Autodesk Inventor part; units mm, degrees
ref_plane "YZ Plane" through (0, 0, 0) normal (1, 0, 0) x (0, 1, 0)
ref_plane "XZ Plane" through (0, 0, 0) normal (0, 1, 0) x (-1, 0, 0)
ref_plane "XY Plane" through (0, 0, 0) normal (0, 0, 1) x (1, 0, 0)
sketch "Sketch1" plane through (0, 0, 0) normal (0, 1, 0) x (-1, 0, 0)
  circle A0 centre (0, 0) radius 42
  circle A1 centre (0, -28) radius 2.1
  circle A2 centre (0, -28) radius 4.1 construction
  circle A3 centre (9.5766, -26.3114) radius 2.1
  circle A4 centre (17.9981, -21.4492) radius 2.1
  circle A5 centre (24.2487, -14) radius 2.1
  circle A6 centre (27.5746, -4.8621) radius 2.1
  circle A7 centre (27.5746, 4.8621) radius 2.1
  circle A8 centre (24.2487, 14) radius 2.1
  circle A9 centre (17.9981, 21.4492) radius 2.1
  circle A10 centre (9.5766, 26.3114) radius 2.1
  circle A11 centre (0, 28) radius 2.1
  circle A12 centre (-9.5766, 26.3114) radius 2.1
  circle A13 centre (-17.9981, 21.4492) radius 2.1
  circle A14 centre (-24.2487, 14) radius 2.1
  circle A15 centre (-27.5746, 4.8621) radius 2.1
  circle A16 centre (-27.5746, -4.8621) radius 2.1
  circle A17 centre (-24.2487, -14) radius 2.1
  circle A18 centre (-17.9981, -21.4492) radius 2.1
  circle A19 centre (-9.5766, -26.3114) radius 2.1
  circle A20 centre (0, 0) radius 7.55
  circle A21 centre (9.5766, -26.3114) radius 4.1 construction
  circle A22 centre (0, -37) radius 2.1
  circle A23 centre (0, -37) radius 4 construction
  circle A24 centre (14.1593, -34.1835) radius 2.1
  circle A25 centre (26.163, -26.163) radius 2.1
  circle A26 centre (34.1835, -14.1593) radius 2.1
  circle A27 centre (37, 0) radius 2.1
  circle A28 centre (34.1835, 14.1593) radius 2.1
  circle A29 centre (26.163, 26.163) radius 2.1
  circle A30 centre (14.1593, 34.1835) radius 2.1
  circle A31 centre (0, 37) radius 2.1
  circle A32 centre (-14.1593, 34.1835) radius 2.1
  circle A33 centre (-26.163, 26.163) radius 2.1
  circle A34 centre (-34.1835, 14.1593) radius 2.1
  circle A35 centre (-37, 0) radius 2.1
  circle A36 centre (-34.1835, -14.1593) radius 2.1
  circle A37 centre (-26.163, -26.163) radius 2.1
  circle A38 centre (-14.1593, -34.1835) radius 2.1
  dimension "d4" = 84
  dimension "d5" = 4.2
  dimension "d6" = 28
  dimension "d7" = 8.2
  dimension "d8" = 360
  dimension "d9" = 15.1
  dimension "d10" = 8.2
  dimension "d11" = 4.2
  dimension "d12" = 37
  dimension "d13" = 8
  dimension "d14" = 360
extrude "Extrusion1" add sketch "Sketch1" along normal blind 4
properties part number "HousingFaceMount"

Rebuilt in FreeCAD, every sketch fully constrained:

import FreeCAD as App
import Part
import Sketcher

doc = App.newDocument("Part")
params = doc.addObject("Spreadsheet::Sheet", "Params")
for row, (alias, value) in enumerate([
    ("sketch1_diameter", "84 mm"),
    ("sketch1_diameter2", "4.2 mm"),
    ("sketch1_diameter3", "15.1 mm"),
    ("pad1_length", "4 mm"),
], start=1):
    params.set(f"A{row}", alias)
    params.set(f"B{row}", "=" + value)
    params.setAlias(f"B{row}", alias)

body = doc.addObject("PartDesign::Body", "Body")

# Sketch on XZ plane
sketch1 = doc.addObject("Sketcher::SketchObject", "Sketch")
body.addObject(sketch1)
sketch1.AttachmentSupport = (doc.XZ_Plane, [""])
sketch1.MapMode = "FlatFace"
sketch1.addGeometry(Part.Circle(App.Vector(0, 0, 0), App.Vector(0, 0, 1), 42), False)
sketch1.addGeometry(Part.Circle(App.Vector(26.2, -26.2, 0), App.Vector(0, 0, 1), 2.1), False)
sketch1.addGeometry(Part.Circle(App.Vector(14.2, -34.2, 0), App.Vector(0, 0, 1), 2.1), False)
sketch1.addGeometry(Part.Circle(App.Vector(18, -21.4, 0), App.Vector(0, 0, 1), 2.1), False)
sketch1.addGeometry(Part.Circle(App.Vector(9.6, -26.3, 0), App.Vector(0, 0, 1), 2.1), False)
sketch1.addGeometry(Part.Circle(App.Vector(34.2, -14.2, 0), App.Vector(0, 0, 1), 2.1), False)
sketch1.addGeometry(Part.Circle(App.Vector(24.2, -14, 0), App.Vector(0, 0, 1), 2.1), False)
sketch1.addGeometry(Part.Circle(App.Vector(27.6, -4.9, 0), App.Vector(0, 0, 1), 2.1), False)
sketch1.addGeometry(Part.Circle(App.Vector(0, -37, 0), App.Vector(0, 0, 1), 2.1), False)
sketch1.addGeometry(Part.Circle(App.Vector(-14.2, -34.2, 0), App.Vector(0, 0, 1), 2.1), False)
sketch1.addGeometry(Part.Circle(App.Vector(0, -28, 0), App.Vector(0, 0, 1), 2.1), False)
sketch1.addGeometry(Part.Circle(App.Vector(-9.6, -26.3, 0), App.Vector(0, 0, 1), 2.1), False)
sketch1.addGeometry(Part.Circle(App.Vector(-18, -21.4, 0), App.Vector(0, 0, 1), 2.1), False)
sketch1.addGeometry(Part.Circle(App.Vector(-26.2, -26.2, 0), App.Vector(0, 0, 1), 2.1), False)
sketch1.addGeometry(Part.Circle(App.Vector(-24.2, -14, 0), App.Vector(0, 0, 1), 2.1), False)
sketch1.addGeometry(Part.Circle(App.Vector(-34.2, -14.2, 0), App.Vector(0, 0, 1), 2.1), False)
sketch1.addGeometry(Part.Circle(App.Vector(-27.6, -4.9, 0), App.Vector(0, 0, 1), 2.1), False)
sketch1.addGeometry(Part.Circle(App.Vector(37, 0, 0), App.Vector(0, 0, 1), 2.1), False)
sketch1.addGeometry(Part.Circle(App.Vector(27.6, 4.9, 0), App.Vector(0, 0, 1), 2.1), False)
sketch1.addGeometry(Part.Circle(App.Vector(34.2, 14.2, 0), App.Vector(0, 0, 1), 2.1), False)
sketch1.addGeometry(Part.Circle(App.Vector(24.2, 14, 0), App.Vector(0, 0, 1), 2.1), False)
sketch1.addGeometry(Part.Circle(App.Vector(26.2, 26.2, 0), App.Vector(0, 0, 1), 2.1), False)
sketch1.addGeometry(Part.Circle(App.Vector(18, 21.4, 0), App.Vector(0, 0, 1), 2.1), False)
sketch1.addGeometry(Part.Circle(App.Vector(9.6, 26.3, 0), App.Vector(0, 0, 1), 2.1), False)
sketch1.addGeometry(Part.Circle(App.Vector(14.2, 34.2, 0), App.Vector(0, 0, 1), 2.1), False)
sketch1.addGeometry(Part.Circle(App.Vector(0, 0, 0), App.Vector(0, 0, 1), 7.5), False)
sketch1.addGeometry(Part.Circle(App.Vector(-27.6, 4.9, 0), App.Vector(0, 0, 1), 2.1), False)
sketch1.addGeometry(Part.Circle(App.Vector(-37, 0, 0), App.Vector(0, 0, 1), 2.1), False)
sketch1.addGeometry(Part.Circle(App.Vector(-24.2, 14, 0), App.Vector(0, 0, 1), 2.1), False)
sketch1.addGeometry(Part.Circle(App.Vector(-34.2, 14.2, 0), App.Vector(0, 0, 1), 2.1), False)
sketch1.addGeometry(Part.Circle(App.Vector(0, 28, 0), App.Vector(0, 0, 1), 2.1), False)
sketch1.addGeometry(Part.Circle(App.Vector(-9.6, 26.3, 0), App.Vector(0, 0, 1), 2.1), False)
sketch1.addGeometry(Part.Circle(App.Vector(-18, 21.4, 0), App.Vector(0, 0, 1), 2.1), False)
sketch1.addGeometry(Part.Circle(App.Vector(0, 37, 0), App.Vector(0, 0, 1), 2.1), False)
sketch1.addGeometry(Part.Circle(App.Vector(-14.2, 34.2, 0), App.Vector(0, 0, 1), 2.1), False)
sketch1.addGeometry(Part.Circle(App.Vector(-26.2, 26.2, 0), App.Vector(0, 0, 1), 2.1), False)
sketch1.addConstraint(Sketcher.Constraint("Coincident", 0, 3, -1, 1))
sketch1.addConstraint(Sketcher.Constraint("Coincident", 25, 3, -1, 1))
sketch1.addConstraint(Sketcher.Constraint("Equal", 1, 2))
sketch1.addConstraint(Sketcher.Constraint("Equal", 2, 3))
sketch1.addConstraint(Sketcher.Constraint("Equal", 3, 4))
sketch1.addConstraint(Sketcher.Constraint("Equal", 4, 5))
sketch1.addConstraint(Sketcher.Constraint("Equal", 5, 6))
sketch1.addConstraint(Sketcher.Constraint("Equal", 6, 7))
sketch1.addConstraint(Sketcher.Constraint("Equal", 7, 8))
sketch1.addConstraint(Sketcher.Constraint("Equal", 8, 9))
sketch1.addConstraint(Sketcher.Constraint("Equal", 9, 10))
sketch1.addConstraint(Sketcher.Constraint("Equal", 10, 11))
sketch1.addConstraint(Sketcher.Constraint("Equal", 11, 12))
sketch1.addConstraint(Sketcher.Constraint("Equal", 12, 13))
sketch1.addConstraint(Sketcher.Constraint("Equal", 13, 14))
sketch1.addConstraint(Sketcher.Constraint("Equal", 14, 15))
sketch1.addConstraint(Sketcher.Constraint("Equal", 15, 16))
sketch1.addConstraint(Sketcher.Constraint("Equal", 16, 17))
sketch1.addConstraint(Sketcher.Constraint("Equal", 17, 18))
sketch1.addConstraint(Sketcher.Constraint("Equal", 18, 19))
sketch1.addConstraint(Sketcher.Constraint("Equal", 19, 20))
sketch1.addConstraint(Sketcher.Constraint("Equal", 20, 21))
sketch1.addConstraint(Sketcher.Constraint("Equal", 21, 22))
sketch1.addConstraint(Sketcher.Constraint("Equal", 22, 23))
sketch1.addConstraint(Sketcher.Constraint("Equal", 23, 24))
sketch1.addConstraint(Sketcher.Constraint("Equal", 24, 26))
sketch1.addConstraint(Sketcher.Constraint("Equal", 26, 27))
sketch1.addConstraint(Sketcher.Constraint("Equal", 27, 28))
sketch1.addConstraint(Sketcher.Constraint("Equal", 28, 29))
sketch1.addConstraint(Sketcher.Constraint("Equal", 29, 30))
sketch1.addConstraint(Sketcher.Constraint("Equal", 30, 31))
sketch1.addConstraint(Sketcher.Constraint("Equal", 31, 32))
sketch1.addConstraint(Sketcher.Constraint("Equal", 32, 33))
sketch1.addConstraint(Sketcher.Constraint("Equal", 33, 34))
sketch1.addConstraint(Sketcher.Constraint("Equal", 34, 35))
sketch1.addConstraint(Sketcher.Constraint("Symmetric", 16, 3, 18, 3, -1, 1))
sketch1.addConstraint(Sketcher.Constraint("Symmetric", 15, 3, 19, 3, -1, 1))
sketch1.addConstraint(Sketcher.Constraint("Symmetric", 14, 3, 20, 3, -1, 1))
sketch1.addConstraint(Sketcher.Constraint("Symmetric", 13, 3, 21, 3, -1, 1))
sketch1.addConstraint(Sketcher.Constraint("Symmetric", 12, 3, 22, 3, -1, 1))
sketch1.addConstraint(Sketcher.Constraint("Symmetric", 11, 3, 23, 3, -1, 1))
sketch1.addConstraint(Sketcher.Constraint("Symmetric", 9, 3, 24, 3, -1, 1))
sketch1.addConstraint(Sketcher.Constraint("Symmetric", 7, 3, 26, 3, -1, 1))
sketch1.addConstraint(Sketcher.Constraint("Symmetric", 17, 3, 27, 3, -1, 1))
sketch1.addConstraint(Sketcher.Constraint("Symmetric", 6, 3, 28, 3, -1, 1))
sketch1.addConstraint(Sketcher.Constraint("Symmetric", 5, 3, 29, 3, -1, 1))
sketch1.addConstraint(Sketcher.Constraint("Symmetric", 10, 3, 30, 3, -1, 1))
sketch1.addConstraint(Sketcher.Constraint("Symmetric", 4, 3, 31, 3, -1, 1))
sketch1.addConstraint(Sketcher.Constraint("Symmetric", 3, 3, 32, 3, -1, 1))
sketch1.addConstraint(Sketcher.Constraint("Symmetric", 8, 3, 33, 3, -1, 1))
sketch1.addConstraint(Sketcher.Constraint("Symmetric", 2, 3, 34, 3, -1, 1))
sketch1.addConstraint(Sketcher.Constraint("Symmetric", 1, 3, 35, 3, -1, 1))
sketch1.addConstraint(Sketcher.Constraint("Symmetric", 2, 3, 9, 3, -2))
sketch1.addConstraint(Sketcher.Constraint("Symmetric", 4, 3, 11, 3, -2))
sketch1.addConstraint(Sketcher.Constraint("Symmetric", 3, 3, 12, 3, -2))
sketch1.addConstraint(Sketcher.Constraint("Symmetric", 1, 3, 13, 3, -2))
sketch1.addConstraint(Sketcher.Constraint("Symmetric", 6, 3, 14, 3, -2))
sketch1.addConstraint(Sketcher.Constraint("Symmetric", 5, 3, 15, 3, -2))
sketch1.addConstraint(Sketcher.Constraint("Symmetric", 7, 3, 16, 3, -2))
sketch1.addConstraint(Sketcher.Constraint("PointOnObject", 8, 3, -2))
sketch1.addConstraint(Sketcher.Constraint("PointOnObject", 10, 3, -2))
sketch1.addConstraint(Sketcher.Constraint("PointOnObject", 17, 3, -1))
sketch1.addConstraint(Sketcher.Constraint("Diameter", 0, 84.0))
sketch1.addConstraint(Sketcher.Constraint("Diameter", 1, 4.2))
sketch1.addConstraint(Sketcher.Constraint("Diameter", 25, 15.1))
sketch1.addConstraint(Sketcher.Constraint("DistanceY", 8, 3, -1, 1, 37.0))
sketch1.addConstraint(Sketcher.Constraint("DistanceY", 10, 3, -1, 1, 28.0))
sketch1.addConstraint(Sketcher.Constraint("DistanceX", -1, 1, 17, 3, 37.0))
sketch1.addConstraint(Sketcher.Constraint("DistanceY", 6, 3, -1, 1, 14.0))
sketch1.addConstraint(Sketcher.Constraint("DistanceY", 3, 3, 5, 3, 7.29))
sketch1.addConstraint(Sketcher.Constraint("DistanceX", -1, 1, 1, 3, 26.163))
sketch1.addConstraint(Sketcher.Constraint("DistanceY", 1, 3, -1, 1, 26.163))
sketch1.addConstraint(Sketcher.Constraint("DistanceX", -1, 1, 3, 3, 17.998))
sketch1.addConstraint(Sketcher.Constraint("DistanceY", 7, 3, -1, 1, 4.862))
sketch1.addConstraint(Sketcher.Constraint("DistanceY", 2, 3, 4, 3, 7.872))
sketch1.addConstraint(Sketcher.Constraint("DistanceX", 4, 3, 5, 3, 24.607))
sketch1.addConstraint(Sketcher.Constraint("DistanceY", 4, 3, 5, 3, 12.152))
sketch1.addConstraint(Sketcher.Constraint("DistanceX", 4, 3, 6, 3, 14.672))
sketch1.addConstraint(Sketcher.Constraint("DistanceX", 6, 3, 7, 3, 3.326))
sketch1.addConstraint(Sketcher.Constraint("DistanceY", 3, 3, 7, 3, 16.587))
sketch1.addConstraint(Sketcher.Constraint("DistanceX", 9, 3, 4, 3, 23.736))
sketch1.addConstraint(Sketcher.Constraint("DistanceX", -1, 1, 2, 3, 14.1593))
sketch1.setExpression("Constraints[62]", "Params.sketch1_diameter")
sketch1.setExpression("Constraints[63]", "Params.sketch1_diameter2")
sketch1.setExpression("Constraints[64]", "Params.sketch1_diameter3")
pad1 = doc.addObject("PartDesign::Pad", "Pad")
body.addObject(pad1)
pad1.Profile = sketch1
pad1.setExpression("Length", "Params.pad1_length")
pad1.Reversed = True

doc.recompute()
